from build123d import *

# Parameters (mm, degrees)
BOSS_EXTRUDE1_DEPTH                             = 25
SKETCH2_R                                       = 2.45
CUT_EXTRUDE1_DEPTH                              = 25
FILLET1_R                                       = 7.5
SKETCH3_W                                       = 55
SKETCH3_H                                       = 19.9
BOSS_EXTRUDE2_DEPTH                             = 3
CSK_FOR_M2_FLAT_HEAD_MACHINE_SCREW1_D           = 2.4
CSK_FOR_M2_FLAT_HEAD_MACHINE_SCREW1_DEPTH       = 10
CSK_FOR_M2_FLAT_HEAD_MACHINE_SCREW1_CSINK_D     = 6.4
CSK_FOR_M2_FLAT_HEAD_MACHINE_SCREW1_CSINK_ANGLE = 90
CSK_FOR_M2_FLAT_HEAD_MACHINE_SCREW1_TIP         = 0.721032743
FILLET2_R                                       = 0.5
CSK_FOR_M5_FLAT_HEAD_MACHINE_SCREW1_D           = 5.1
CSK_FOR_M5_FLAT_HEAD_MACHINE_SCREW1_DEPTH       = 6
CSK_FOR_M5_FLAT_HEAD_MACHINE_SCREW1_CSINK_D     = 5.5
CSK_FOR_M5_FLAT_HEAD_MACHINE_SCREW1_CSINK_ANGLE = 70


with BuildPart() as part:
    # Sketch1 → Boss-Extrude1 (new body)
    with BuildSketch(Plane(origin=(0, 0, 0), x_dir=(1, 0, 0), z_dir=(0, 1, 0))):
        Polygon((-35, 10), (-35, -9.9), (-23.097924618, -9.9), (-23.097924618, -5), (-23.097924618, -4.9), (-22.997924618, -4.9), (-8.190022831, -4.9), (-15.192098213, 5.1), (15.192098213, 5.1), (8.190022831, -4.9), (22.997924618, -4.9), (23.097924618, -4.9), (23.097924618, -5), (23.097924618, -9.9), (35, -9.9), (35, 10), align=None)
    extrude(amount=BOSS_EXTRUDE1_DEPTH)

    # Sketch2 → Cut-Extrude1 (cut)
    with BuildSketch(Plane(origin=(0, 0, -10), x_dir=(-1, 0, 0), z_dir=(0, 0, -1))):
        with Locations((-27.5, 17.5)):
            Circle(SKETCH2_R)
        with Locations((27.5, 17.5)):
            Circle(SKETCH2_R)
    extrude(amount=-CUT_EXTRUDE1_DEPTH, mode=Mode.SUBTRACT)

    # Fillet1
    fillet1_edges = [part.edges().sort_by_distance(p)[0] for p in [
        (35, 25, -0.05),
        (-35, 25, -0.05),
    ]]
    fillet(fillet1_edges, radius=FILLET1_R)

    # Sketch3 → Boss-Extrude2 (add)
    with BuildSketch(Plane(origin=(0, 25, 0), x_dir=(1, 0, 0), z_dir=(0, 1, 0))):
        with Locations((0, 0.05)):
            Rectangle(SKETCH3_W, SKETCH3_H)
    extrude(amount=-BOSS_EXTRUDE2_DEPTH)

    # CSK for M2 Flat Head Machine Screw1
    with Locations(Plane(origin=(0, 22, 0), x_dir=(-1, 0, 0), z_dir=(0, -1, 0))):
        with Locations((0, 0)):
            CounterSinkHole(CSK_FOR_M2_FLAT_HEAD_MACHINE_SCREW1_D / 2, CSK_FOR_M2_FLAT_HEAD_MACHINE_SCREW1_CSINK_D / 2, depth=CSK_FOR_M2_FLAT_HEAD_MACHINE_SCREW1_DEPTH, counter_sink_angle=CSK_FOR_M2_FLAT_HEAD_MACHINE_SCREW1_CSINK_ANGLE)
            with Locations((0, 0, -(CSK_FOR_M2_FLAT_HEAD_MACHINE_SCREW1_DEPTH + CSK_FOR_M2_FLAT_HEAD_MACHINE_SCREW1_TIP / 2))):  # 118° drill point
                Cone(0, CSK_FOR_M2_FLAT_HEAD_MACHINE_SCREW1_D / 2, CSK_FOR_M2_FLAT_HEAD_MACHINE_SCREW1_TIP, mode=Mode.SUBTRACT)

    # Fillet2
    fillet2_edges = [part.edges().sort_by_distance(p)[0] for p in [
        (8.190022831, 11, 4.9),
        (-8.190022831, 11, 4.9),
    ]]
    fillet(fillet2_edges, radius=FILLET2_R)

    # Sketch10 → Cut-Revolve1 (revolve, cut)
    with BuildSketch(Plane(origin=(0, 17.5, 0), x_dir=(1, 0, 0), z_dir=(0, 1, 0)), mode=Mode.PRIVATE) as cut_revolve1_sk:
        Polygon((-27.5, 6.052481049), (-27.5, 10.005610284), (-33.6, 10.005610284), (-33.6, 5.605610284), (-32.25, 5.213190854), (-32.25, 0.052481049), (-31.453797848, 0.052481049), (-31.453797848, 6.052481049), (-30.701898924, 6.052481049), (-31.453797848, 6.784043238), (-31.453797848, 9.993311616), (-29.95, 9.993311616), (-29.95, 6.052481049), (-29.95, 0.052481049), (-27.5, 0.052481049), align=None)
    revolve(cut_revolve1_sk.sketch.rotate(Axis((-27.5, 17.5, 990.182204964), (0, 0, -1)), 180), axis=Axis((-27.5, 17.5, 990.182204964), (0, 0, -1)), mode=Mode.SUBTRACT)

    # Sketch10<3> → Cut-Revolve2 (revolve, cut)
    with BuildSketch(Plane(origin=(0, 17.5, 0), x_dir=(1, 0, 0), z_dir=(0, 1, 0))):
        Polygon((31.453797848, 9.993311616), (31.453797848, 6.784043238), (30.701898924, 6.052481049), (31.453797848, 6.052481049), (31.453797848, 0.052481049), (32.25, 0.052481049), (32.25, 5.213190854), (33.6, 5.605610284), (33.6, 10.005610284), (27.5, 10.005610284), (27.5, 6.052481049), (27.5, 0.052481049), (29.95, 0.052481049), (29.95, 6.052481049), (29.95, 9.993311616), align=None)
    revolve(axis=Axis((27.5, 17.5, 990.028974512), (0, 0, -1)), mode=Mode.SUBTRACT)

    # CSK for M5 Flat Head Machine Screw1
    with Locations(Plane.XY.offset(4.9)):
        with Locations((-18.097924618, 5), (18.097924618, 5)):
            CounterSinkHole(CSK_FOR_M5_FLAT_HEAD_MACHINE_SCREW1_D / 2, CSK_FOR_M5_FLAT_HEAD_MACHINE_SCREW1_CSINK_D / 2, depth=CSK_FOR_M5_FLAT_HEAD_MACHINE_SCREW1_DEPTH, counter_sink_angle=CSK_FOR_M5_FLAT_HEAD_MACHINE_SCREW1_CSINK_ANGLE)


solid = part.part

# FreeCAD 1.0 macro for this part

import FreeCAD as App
import Part
import Sketcher

V = App.Vector
Q = App.Units.Quantity


def edges_at(feature, points):
    """Names of the edges that pass closest to the given points."""
    edges = feature.Shape.Edges
    near = lambda p: min(range(len(edges)), key=lambda i: edges[i].distToShape(Part.Vertex(*p))[0])
    return sorted({f"Edge{near(p) + 1}" for p in points})

doc = App.newDocument("Part")
params = doc.addObject("Spreadsheet::Sheet", "Params")
for row, (alias, value) in enumerate([
    ("sketch1_width", "70 mm"),
    ("sketch1_height", "5 mm"),
    ("sketch1_height2", "19.9 mm"),
    ("pad1_length", "25 mm"),
    ("sketch2_diameter", "4.9 mm"),
    ("pocket1_length", "25 mm"),
    ("fillet_radius", "7.5 mm"),
    ("sketch3_width", "55 mm"),
    ("sketch3_height", "19.9 mm"),
    ("pad2_length", "3 mm"),
    ("sketch4_diameter", "2.4 mm"),
    ("hole_diameter", "2.4 mm"),
    ("hole_depth", "10 mm"),
    ("hole_csink_diameter", "6.4 mm"),
    ("fillet2_radius", "0.5 mm"),
    ("sketch5_height", "6 mm"),
    ("sketch5_width", "6.1 mm"),
    ("sketch5_height2", "4.4 mm"),
    ("sketch5_width2", "2.45 mm"),
    ("groove_angle", "360 deg"),
    ("sketch6_height", "6 mm"),
    ("sketch6_width", "6.1 mm"),
    ("sketch6_height2", "4.4 mm"),
    ("sketch6_width2", "2.45 mm"),
    ("groove2_angle", "360 deg"),
    ("sketch7_diameter", "5.1 mm"),
    ("hole2_diameter", "5.1 mm"),
    ("hole2_depth", "6 mm"),
    ("hole2_csink_diameter", "5.5 mm"),
], start=1):
    params.set(f"A{row}", alias)
    params.set(f"B{row}", "=" + value)
    params.setAlias(f"B{row}", alias)

body = doc.addObject("PartDesign::Body", "Body")

# Sketch on XZ plane
sketch1 = doc.addObject("Sketcher::SketchObject", "Sketch")
body.addObject(sketch1)
sketch1.AttachmentSupport = (doc.XZ_Plane, [""])
sketch1.MapMode = "FlatFace"
sketch1.addGeometry(Part.LineSegment(V(-35, -10, 0), V(-35, 10, 0)), False)
sketch1.addGeometry(Part.LineSegment(V(-35, 10, 0), V(-23, 10, 0)), False)
sketch1.addGeometry(Part.LineSegment(V(-23, 10, 0), V(-23, 5, 0)), False)
sketch1.addGeometry(Part.LineSegment(V(-23, 5, 0), V(-8, 5, 0)), False)
sketch1.addGeometry(Part.LineSegment(V(-8, 5, 0), V(-15, -5, 0)), False)
sketch1.addGeometry(Part.LineSegment(V(-15, -5, 0), V(15, -5, 0)), False)
sketch1.addGeometry(Part.LineSegment(V(15, -5, 0), V(8, 5, 0)), False)
sketch1.addGeometry(Part.LineSegment(V(8, 5, 0), V(23, 5, 0)), False)
sketch1.addGeometry(Part.LineSegment(V(23, 5, 0), V(23, 10, 0)), False)
sketch1.addGeometry(Part.LineSegment(V(23, 10, 0), V(35, 10, 0)), False)
sketch1.addGeometry(Part.LineSegment(V(35, 10, 0), V(35, -10, 0)), False)
sketch1.addGeometry(Part.LineSegment(V(35, -10, 0), V(-35, -10, 0)), False)
sketch1.addConstraint(Sketcher.Constraint("Coincident", 0, 2, 1, 1))
sketch1.addConstraint(Sketcher.Constraint("Coincident", 1, 2, 2, 1))
sketch1.addConstraint(Sketcher.Constraint("Coincident", 2, 2, 3, 1))
sketch1.addConstraint(Sketcher.Constraint("Coincident", 3, 2, 4, 1))
sketch1.addConstraint(Sketcher.Constraint("Coincident", 4, 2, 5, 1))
sketch1.addConstraint(Sketcher.Constraint("Coincident", 5, 2, 6, 1))
sketch1.addConstraint(Sketcher.Constraint("Coincident", 6, 2, 7, 1))
sketch1.addConstraint(Sketcher.Constraint("Coincident", 7, 2, 8, 1))
sketch1.addConstraint(Sketcher.Constraint("Coincident", 8, 2, 9, 1))
sketch1.addConstraint(Sketcher.Constraint("Coincident", 9, 2, 10, 1))
sketch1.addConstraint(Sketcher.Constraint("Coincident", 10, 2, 11, 1))
sketch1.addConstraint(Sketcher.Constraint("Coincident", 11, 2, 0, 1))
sketch1.addConstraint(Sketcher.Constraint("Vertical", 0))
sketch1.addConstraint(Sketcher.Constraint("Horizontal", 1))
sketch1.addConstraint(Sketcher.Constraint("Vertical", 2))
sketch1.addConstraint(Sketcher.Constraint("Horizontal", 3))
sketch1.addConstraint(Sketcher.Constraint("Horizontal", 5))
sketch1.addConstraint(Sketcher.Constraint("Horizontal", 7))
sketch1.addConstraint(Sketcher.Constraint("Vertical", 8))
sketch1.addConstraint(Sketcher.Constraint("Horizontal", 9))
sketch1.addConstraint(Sketcher.Constraint("Vertical", 10))
sketch1.addConstraint(Sketcher.Constraint("Horizontal", 11))
sketch1.addConstraint(Sketcher.Constraint("Symmetric", 3, 2, 6, 2, -2))
sketch1.addConstraint(Sketcher.Constraint("Symmetric", 1, 2, 8, 2, -2))
sketch1.addConstraint(Sketcher.Constraint("Equal", 1, 9))
sketch1.addConstraint(Sketcher.Constraint("Equal", 4, 6))
sketch1.addConstraint(Sketcher.Constraint("DistanceX", 11, 2, 11, 1, Q("70 mm")))
sketch1.addConstraint(Sketcher.Constraint("DistanceY", 2, 2, 2, 1, Q("5 mm")))
sketch1.addConstraint(Sketcher.Constraint("Angle", 4, Q("-125 deg")))
sketch1.addConstraint(Sketcher.Constraint("DistanceY", 0, 1, 0, 2, Q("19.9 mm")))
sketch1.addConstraint(Sketcher.Constraint("DistanceY", 10, 2, -1, 1, Q("10 mm")))
sketch1.addConstraint(Sketcher.Constraint("DistanceY", 4, 2, 3, 2, Q("10 mm")))
sketch1.addConstraint(Sketcher.Constraint("DistanceX", 3, 1, 3, 2, Q("14.907902 mm")))
sketch1.addConstraint(Sketcher.Constraint("DistanceX", 4, 2, -1, 1, Q("15.192098 mm")))
sketch1.setExpression("Constraints[26]", "Params.sketch1_width")
sketch1.setExpression("Constraints[27]", "Params.sketch1_height")
sketch1.setExpression("Constraints[29]", "Params.sketch1_height2")
pad1 = doc.addObject("PartDesign::Pad", "Pad")
body.addObject(pad1)
pad1.Profile = sketch1
pad1.setExpression("Length", "Params.pad1_length")
pad1.Reversed = True

# Sketch on XY plane
sketch2 = doc.addObject("Sketcher::SketchObject", "Sketch001")
body.addObject(sketch2)
sketch2.AttachmentSupport = (doc.XY_Plane, [""])
sketch2.MapMode = "FlatFace"
sketch2.AttachmentOffset = App.Placement(V(0, 0, -10), App.Rotation())
sketch2.addGeometry(Part.Circle(V(27.5, 17.5, 0), V(0, 0, 1), 2.5), False)
sketch2.addGeometry(Part.Circle(V(-27.5, 17.5, 0), V(0, 0, 1), 2.5), False)
sketch2.addConstraint(Sketcher.Constraint("Equal", 0, 1))
sketch2.addConstraint(Sketcher.Constraint("Symmetric", 0, 3, 1, 3, -2))
sketch2.addConstraint(Sketcher.Constraint("Diameter", 0, Q("4.9 mm")))
sketch2.addConstraint(Sketcher.Constraint("DistanceX", 1, 3, 0, 3, Q("55 mm")))
sketch2.addConstraint(Sketcher.Constraint("DistanceY", -1, 1, 0, 3, Q("17.5 mm")))
sketch2.setExpression("Constraints[2]", "Params.sketch2_diameter")
pocket1 = doc.addObject("PartDesign::Pocket", "Pocket")
body.addObject(pocket1)
pocket1.Profile = sketch2
pocket1.setExpression("Length", "Params.pocket1_length")
pocket1.Reversed = True
doc.recompute()

fillet = doc.addObject("PartDesign::Fillet", "Fillet")
body.addObject(fillet)
fillet.Base = (pocket1, edges_at(pocket1, [(35, 25, -0.05), (-35, 25, -0.05)]))
fillet.setExpression("Radius", "Params.fillet_radius")

# Sketch on XZ plane
sketch3 = doc.addObject("Sketcher::SketchObject", "Sketch002")
body.addObject(sketch3)
sketch3.AttachmentSupport = (doc.XZ_Plane, [""])
sketch3.MapMode = "FlatFace"
sketch3.AttachmentOffset = App.Placement(V(0, 0, -25), App.Rotation())
sketch3.addGeometry(Part.LineSegment(V(-28, -10, 0), V(-28, 10, 0)), False)
sketch3.addGeometry(Part.LineSegment(V(-28, 10, 0), V(28, 10, 0)), False)
sketch3.addGeometry(Part.LineSegment(V(28, 10, 0), V(28, -10, 0)), False)
sketch3.addGeometry(Part.LineSegment(V(28, -10, 0), V(-28, -10, 0)), False)
sketch3.addConstraint(Sketcher.Constraint("Coincident", 0, 2, 1, 1))
sketch3.addConstraint(Sketcher.Constraint("Coincident", 1, 2, 2, 1))
sketch3.addConstraint(Sketcher.Constraint("Coincident", 2, 2, 3, 1))
sketch3.addConstraint(Sketcher.Constraint("Coincident", 3, 2, 0, 1))
sketch3.addConstraint(Sketcher.Constraint("Vertical", 0))
sketch3.addConstraint(Sketcher.Constraint("Horizontal", 1))
sketch3.addConstraint(Sketcher.Constraint("Vertical", 2))
sketch3.addConstraint(Sketcher.Constraint("Horizontal", 3))
sketch3.addConstraint(Sketcher.Constraint("DistanceX", 1, 1, 1, 2, Q("55 mm")))
sketch3.addConstraint(Sketcher.Constraint("DistanceY", 0, 1, 0, 2, Q("19.9 mm")))
sketch3.addConstraint(Sketcher.Constraint("DistanceY", 2, 2, -1, 1, Q("10 mm")))
sketch3.addConstraint(Sketcher.Constraint("DistanceX", 0, 2, -1, 1, Q("27.5 mm")))
sketch3.setExpression("Constraints[8]", "Params.sketch3_width")
sketch3.setExpression("Constraints[9]", "Params.sketch3_height")
pad2 = doc.addObject("PartDesign::Pad", "Pad001")
body.addObject(pad2)
pad2.Profile = sketch3
pad2.setExpression("Length", "Params.pad2_length")

# Sketch on XZ plane
sketch4 = doc.addObject("Sketcher::SketchObject", "Sketch003")
body.addObject(sketch4)
sketch4.AttachmentSupport = (doc.XZ_Plane, [""])
sketch4.MapMode = "FlatFace"
sketch4.AttachmentOffset = App.Placement(V(0, 0, -22), App.Rotation())
sketch4.addGeometry(Part.Circle(V(0, 0, 0), V(0, 0, 1), 1.2), False)
sketch4.addConstraint(Sketcher.Constraint("Coincident", 0, 3, -1, 1))
sketch4.addConstraint(Sketcher.Constraint("Diameter", 0, Q("2.4 mm")))
sketch4.setExpression("Constraints[1]", "Params.sketch4_diameter")
doc.recompute()
hole = doc.addObject("PartDesign::Hole", "Hole")
body.addObject(hole)
hole.Profile = sketch4
hole.ThreadType = "None"
hole.setExpression("Diameter", "Params.hole_diameter")
hole.DepthType = "Dimension"
hole.setExpression("Depth", "Params.hole_depth")
hole.DrillPoint = "Angled"
hole.DrillPointAngle = 118
hole.HoleCutType = "Countersink"
hole.setExpression("HoleCutDiameter", "Params.hole_csink_diameter")
hole.HoleCutCountersinkAngle = 90
doc.recompute()

fillet2 = doc.addObject("PartDesign::Fillet", "Fillet001")
body.addObject(fillet2)
fillet2.Base = (hole, edges_at(hole, [(8.19, 11, 4.9), (-8.19, 11, 4.9)]))
fillet2.setExpression("Radius", "Params.fillet2_radius")

# Sketch on XZ plane
sketch5 = doc.addObject("Sketcher::SketchObject", "Sketch004")
body.addObject(sketch5)
sketch5.AttachmentSupport = (doc.XZ_Plane, [""])
sketch5.MapMode = "FlatFace"
sketch5.AttachmentOffset = App.Placement(V(0, 0, -17.5), App.Rotation())
sketch5.addGeometry(Part.LineSegment(V(-27.5, -10, 0), V(-33.6, -10, 0)), False)
sketch5.addGeometry(Part.LineSegment(V(-33.6, -10, 0), V(-33.6, -5.6, 0)), False)
sketch5.addGeometry(Part.LineSegment(V(-33.6, -5.6, 0), V(-32.2, -5.2, 0)), False)
sketch5.addGeometry(Part.LineSegment(V(-32.2, -5.2, 0), V(-32.2, -0.1, 0)), False)
sketch5.addGeometry(Part.LineSegment(V(-32.2, -0.1, 0), V(-31.5, -0.1, 0)), False)
sketch5.addGeometry(Part.LineSegment(V(-31.5, -0.1, 0), V(-31.5, -6.1, 0)), False)
sketch5.addGeometry(Part.LineSegment(V(-31.5, -6.1, 0), V(-30.7, -6.1, 0)), False)
sketch5.addGeometry(Part.LineSegment(V(-30.7, -6.1, 0), V(-31.5, -6.8, 0)), False)
sketch5.addGeometry(Part.LineSegment(V(-31.5, -6.8, 0), V(-31.5, -10, 0)), False)
sketch5.addGeometry(Part.LineSegment(V(-31.5, -10, 0), V(-29.9, -10, 0)), False)
sketch5.addGeometry(Part.LineSegment(V(-29.9, -10, 0), V(-29.9, -0.1, 0)), False)
sketch5.addGeometry(Part.LineSegment(V(-29.9, -0.1, 0), V(-27.5, -0.1, 0)), False)
sketch5.addGeometry(Part.LineSegment(V(-27.5, -0.1, 0), V(-27.5, -10, 0)), False)
sketch5.addGeometry(Part.LineSegment(V(-27.5, -0.1, 0), V(-27.5, -10, 0)), True)  # axis
sketch5.addConstraint(Sketcher.Constraint("Coincident", 0, 2, 1, 1))
sketch5.addConstraint(Sketcher.Constraint("Coincident", 1, 2, 2, 1))
sketch5.addConstraint(Sketcher.Constraint("Coincident", 2, 2, 3, 1))
sketch5.addConstraint(Sketcher.Constraint("Coincident", 3, 2, 4, 1))
sketch5.addConstraint(Sketcher.Constraint("Coincident", 4, 2, 5, 1))
sketch5.addConstraint(Sketcher.Constraint("Coincident", 5, 2, 6, 1))
sketch5.addConstraint(Sketcher.Constraint("Coincident", 6, 2, 7, 1))
sketch5.addConstraint(Sketcher.Constraint("Coincident", 7, 2, 8, 1))
sketch5.addConstraint(Sketcher.Constraint("Coincident", 8, 2, 9, 1))
sketch5.addConstraint(Sketcher.Constraint("Coincident", 9, 2, 10, 1))
sketch5.addConstraint(Sketcher.Constraint("Coincident", 10, 2, 11, 1))
sketch5.addConstraint(Sketcher.Constraint("Coincident", 11, 2, 12, 1))
sketch5.addConstraint(Sketcher.Constraint("Coincident", 12, 2, 0, 1))
sketch5.addConstraint(Sketcher.Constraint("Horizontal", 0))
sketch5.addConstraint(Sketcher.Constraint("Vertical", 1))
sketch5.addConstraint(Sketcher.Constraint("Vertical", 3))
sketch5.addConstraint(Sketcher.Constraint("Horizontal", 4))
sketch5.addConstraint(Sketcher.Constraint("Vertical", 5))
sketch5.addConstraint(Sketcher.Constraint("Horizontal", 6))
sketch5.addConstraint(Sketcher.Constraint("Vertical", 8))
sketch5.addConstraint(Sketcher.Constraint("Horizontal", 9))
sketch5.addConstraint(Sketcher.Constraint("Vertical", 10))
sketch5.addConstraint(Sketcher.Constraint("Horizontal", 11))
sketch5.addConstraint(Sketcher.Constraint("Vertical", 12))
sketch5.addConstraint(Sketcher.Constraint("Vertical", 13))
sketch5.addConstraint(Sketcher.Constraint("Coincident", 13, 1, 11, 2))
sketch5.addConstraint(Sketcher.Constraint("Horizontal", 4, 2, 10, 2))
sketch5.addConstraint(Sketcher.Constraint("Horizontal", 0, 2, 13, 2))
sketch5.addConstraint(Sketcher.Constraint("Vertical", 5, 2, 7, 2))
sketch5.addConstraint(Sketcher.Constraint("DistanceY", 5, 2, 5, 1, Q("6 mm")))
sketch5.addConstraint(Sketcher.Constraint("DistanceX", 0, 2, 0, 1, Q("6.1 mm")))
sketch5.addConstraint(Sketcher.Constraint("DistanceY", 1, 1, 1, 2, Q("4.4 mm")))
sketch5.addConstraint(Sketcher.Constraint("DistanceX", 11, 1, 11, 2, Q("2.45 mm")))
sketch5.addConstraint(Sketcher.Constraint("DistanceX", 0, 2, -1, 1, Q("33.6 mm")))
sketch5.addConstraint(Sketcher.Constraint("DistanceX", 3, 2, 10, 2, Q("2.3 mm")))
sketch5.addConstraint(Sketcher.Constraint("DistanceX", 6, 1, 6, 2, Q("0.751899 mm")))
sketch5.addConstraint(Sketcher.Constraint("DistanceY", 3, 1, 3, 2, Q("5.16071 mm")))
sketch5.addConstraint(Sketcher.Constraint("DistanceY", 8, 2, 8, 1, Q("3.209268 mm")))
sketch5.addConstraint(Sketcher.Constraint("DistanceY", 10, 1, 10, 2, Q("9.940831 mm")))
sketch5.addConstraint(Sketcher.Constraint("DistanceY", 12, 2, 12, 1, Q("9.953129 mm")))
sketch5.addConstraint(Sketcher.Constraint("DistanceX", 6, 2, -1, 1, Q("30.701899 mm")))
sketch5.addConstraint(Sketcher.Constraint("DistanceY", 0, 2, -1, 1, Q("10.00561 mm")))
sketch5.setExpression("Constraints[29]", "Params.sketch5_height")
sketch5.setExpression("Constraints[30]", "Params.sketch5_width")
sketch5.setExpression("Constraints[31]", "Params.sketch5_height2")
sketch5.setExpression("Constraints[32]", "Params.sketch5_width2")
groove = doc.addObject("PartDesign::Groove", "Groove")
body.addObject(groove)
groove.Profile = sketch5
groove.ReferenceAxis = (sketch5, ["Axis0"])
groove.setExpression("Angle", "Params.groove_angle")

# Sketch on XZ plane
sketch6 = doc.addObject("Sketcher::SketchObject", "Sketch005")
body.addObject(sketch6)
sketch6.AttachmentSupport = (doc.XZ_Plane, [""])
sketch6.MapMode = "FlatFace"
sketch6.AttachmentOffset = App.Placement(V(0, 0, -17.5), App.Rotation())
sketch6.addGeometry(Part.LineSegment(V(31.5, -10, 0), V(31.5, -6.8, 0)), False)
sketch6.addGeometry(Part.LineSegment(V(31.5, -6.8, 0), V(30.7, -6.1, 0)), False)
sketch6.addGeometry(Part.LineSegment(V(30.7, -6.1, 0), V(31.5, -6.1, 0)), False)
sketch6.addGeometry(Part.LineSegment(V(31.5, -6.1, 0), V(31.5, -0.1, 0)), False)
sketch6.addGeometry(Part.LineSegment(V(31.5, -0.1, 0), V(32.2, -0.1, 0)), False)
sketch6.addGeometry(Part.LineSegment(V(32.2, -0.1, 0), V(32.2, -5.2, 0)), False)
sketch6.addGeometry(Part.LineSegment(V(32.2, -5.2, 0), V(33.6, -5.6, 0)), False)
sketch6.addGeometry(Part.LineSegment(V(33.6, -5.6, 0), V(33.6, -10, 0)), False)
sketch6.addGeometry(Part.LineSegment(V(33.6, -10, 0), V(27.5, -10, 0)), False)
sketch6.addGeometry(Part.LineSegment(V(27.5, -10, 0), V(27.5, -0.1, 0)), False)
sketch6.addGeometry(Part.LineSegment(V(27.5, -0.1, 0), V(29.9, -0.1, 0)), False)
sketch6.addGeometry(Part.LineSegment(V(29.9, -0.1, 0), V(29.9, -10, 0)), False)
sketch6.addGeometry(Part.LineSegment(V(29.9, -10, 0), V(31.5, -10, 0)), False)
sketch6.addGeometry(Part.LineSegment(V(27.5, -0.1, 0), V(27.5, -10, 0)), True)  # axis
sketch6.addConstraint(Sketcher.Constraint("Coincident", 0, 2, 1, 1))
sketch6.addConstraint(Sketcher.Constraint("Coincident", 1, 2, 2, 1))
sketch6.addConstraint(Sketcher.Constraint("Coincident", 2, 2, 3, 1))
sketch6.addConstraint(Sketcher.Constraint("Coincident", 3, 2, 4, 1))
sketch6.addConstraint(Sketcher.Constraint("Coincident", 4, 2, 5, 1))
sketch6.addConstraint(Sketcher.Constraint("Coincident", 5, 2, 6, 1))
sketch6.addConstraint(Sketcher.Constraint("Coincident", 6, 2, 7, 1))
sketch6.addConstraint(Sketcher.Constraint("Coincident", 7, 2, 8, 1))
sketch6.addConstraint(Sketcher.Constraint("Coincident", 8, 2, 9, 1))
sketch6.addConstraint(Sketcher.Constraint("Coincident", 9, 2, 10, 1))
sketch6.addConstraint(Sketcher.Constraint("Coincident", 10, 2, 11, 1))
sketch6.addConstraint(Sketcher.Constraint("Coincident", 11, 2, 12, 1))
sketch6.addConstraint(Sketcher.Constraint("Coincident", 12, 2, 0, 1))
sketch6.addConstraint(Sketcher.Constraint("Vertical", 0))
sketch6.addConstraint(Sketcher.Constraint("Horizontal", 2))
sketch6.addConstraint(Sketcher.Constraint("Vertical", 3))
sketch6.addConstraint(Sketcher.Constraint("Horizontal", 4))
sketch6.addConstraint(Sketcher.Constraint("Vertical", 5))
sketch6.addConstraint(Sketcher.Constraint("Vertical", 7))
sketch6.addConstraint(Sketcher.Constraint("Horizontal", 8))
sketch6.addConstraint(Sketcher.Constraint("Vertical", 9))
sketch6.addConstraint(Sketcher.Constraint("Horizontal", 10))
sketch6.addConstraint(Sketcher.Constraint("Vertical", 11))
sketch6.addConstraint(Sketcher.Constraint("Horizontal", 12))
sketch6.addConstraint(Sketcher.Constraint("Vertical", 13))
sketch6.addConstraint(Sketcher.Constraint("Coincident", 13, 1, 9, 2))
sketch6.addConstraint(Sketcher.Constraint("Horizontal", 4, 2, 9, 2))
sketch6.addConstraint(Sketcher.Constraint("Horizontal", 7, 2, 13, 2))
sketch6.addConstraint(Sketcher.Constraint("Vertical", 0, 2, 2, 2))
sketch6.addConstraint(Sketcher.Constraint("DistanceY", 3, 1, 3, 2, Q("6 mm")))
sketch6.addConstraint(Sketcher.Constraint("DistanceX", 8, 2, 8, 1, Q("6.1 mm")))
sketch6.addConstraint(Sketcher.Constraint("DistanceY", 7, 2, 7, 1, Q("4.4 mm")))
sketch6.addConstraint(Sketcher.Constraint("DistanceX", 10, 1, 10, 2, Q("2.45 mm")))
sketch6.addConstraint(Sketcher.Constraint("DistanceX", -1, 1, 6, 2, Q("33.6 mm")))
sketch6.addConstraint(Sketcher.Constraint("DistanceX", 10, 2, 4, 2, Q("2.3 mm")))
sketch6.addConstraint(Sketcher.Constraint("DistanceX", 2, 1, 2, 2, Q("0.751899 mm")))
sketch6.addConstraint(Sketcher.Constraint("DistanceY", 0, 1, 0, 2, Q("3.209268 mm")))
sketch6.addConstraint(Sketcher.Constraint("DistanceY", 5, 2, 5, 1, Q("5.16071 mm")))
sketch6.addConstraint(Sketcher.Constraint("DistanceY", 9, 1, 9, 2, Q("9.953129 mm")))
sketch6.addConstraint(Sketcher.Constraint("DistanceY", 11, 2, 11, 1, Q("9.940831 mm")))
sketch6.addConstraint(Sketcher.Constraint("DistanceX", -1, 1, 1, 2, Q("30.701899 mm")))
sketch6.addConstraint(Sketcher.Constraint("DistanceY", 1, 2, -1, 1, Q("6.052481 mm")))
sketch6.setExpression("Constraints[29]", "Params.sketch6_height")
sketch6.setExpression("Constraints[30]", "Params.sketch6_width")
sketch6.setExpression("Constraints[31]", "Params.sketch6_height2")
sketch6.setExpression("Constraints[32]", "Params.sketch6_width2")
groove2 = doc.addObject("PartDesign::Groove", "Groove001")
body.addObject(groove2)
groove2.Profile = sketch6
groove2.ReferenceAxis = (sketch6, ["Axis0"])
groove2.setExpression("Angle", "Params.groove2_angle")

# Sketch on XY plane
sketch7 = doc.addObject("Sketcher::SketchObject", "Sketch006")
body.addObject(sketch7)
sketch7.AttachmentSupport = (doc.XY_Plane, [""])
sketch7.MapMode = "FlatFace"
sketch7.AttachmentOffset = App.Placement(V(0, 0, 4.9), App.Rotation())
sketch7.addGeometry(Part.Circle(V(-18.1, 5, 0), V(0, 0, 1), 2.5), False)
sketch7.addGeometry(Part.Circle(V(18.1, 5, 0), V(0, 0, 1), 2.5), False)
sketch7.addConstraint(Sketcher.Constraint("Equal", 0, 1))
sketch7.addConstraint(Sketcher.Constraint("Symmetric", 0, 3, 1, 3, -2))
sketch7.addConstraint(Sketcher.Constraint("Diameter", 0, Q("5.1 mm")))
sketch7.addConstraint(Sketcher.Constraint("DistanceY", -1, 1, 0, 3, Q("5 mm")))
sketch7.addConstraint(Sketcher.Constraint("DistanceX", 0, 3, 1, 3, Q("36.195849 mm")))
sketch7.setExpression("Constraints[2]", "Params.sketch7_diameter")
doc.recompute()
hole2 = doc.addObject("PartDesign::Hole", "Hole001")
body.addObject(hole2)
hole2.Profile = sketch7
hole2.ThreadType = "None"
hole2.setExpression("Diameter", "Params.hole2_diameter")
hole2.DepthType = "Dimension"
hole2.setExpression("Depth", "Params.hole2_depth")
hole2.DrillPoint = "Flat"
hole2.HoleCutType = "Countersink"
hole2.setExpression("HoleCutDiameter", "Params.hole2_csink_diameter")
hole2.HoleCutCountersinkAngle = 70

doc.recompute()
